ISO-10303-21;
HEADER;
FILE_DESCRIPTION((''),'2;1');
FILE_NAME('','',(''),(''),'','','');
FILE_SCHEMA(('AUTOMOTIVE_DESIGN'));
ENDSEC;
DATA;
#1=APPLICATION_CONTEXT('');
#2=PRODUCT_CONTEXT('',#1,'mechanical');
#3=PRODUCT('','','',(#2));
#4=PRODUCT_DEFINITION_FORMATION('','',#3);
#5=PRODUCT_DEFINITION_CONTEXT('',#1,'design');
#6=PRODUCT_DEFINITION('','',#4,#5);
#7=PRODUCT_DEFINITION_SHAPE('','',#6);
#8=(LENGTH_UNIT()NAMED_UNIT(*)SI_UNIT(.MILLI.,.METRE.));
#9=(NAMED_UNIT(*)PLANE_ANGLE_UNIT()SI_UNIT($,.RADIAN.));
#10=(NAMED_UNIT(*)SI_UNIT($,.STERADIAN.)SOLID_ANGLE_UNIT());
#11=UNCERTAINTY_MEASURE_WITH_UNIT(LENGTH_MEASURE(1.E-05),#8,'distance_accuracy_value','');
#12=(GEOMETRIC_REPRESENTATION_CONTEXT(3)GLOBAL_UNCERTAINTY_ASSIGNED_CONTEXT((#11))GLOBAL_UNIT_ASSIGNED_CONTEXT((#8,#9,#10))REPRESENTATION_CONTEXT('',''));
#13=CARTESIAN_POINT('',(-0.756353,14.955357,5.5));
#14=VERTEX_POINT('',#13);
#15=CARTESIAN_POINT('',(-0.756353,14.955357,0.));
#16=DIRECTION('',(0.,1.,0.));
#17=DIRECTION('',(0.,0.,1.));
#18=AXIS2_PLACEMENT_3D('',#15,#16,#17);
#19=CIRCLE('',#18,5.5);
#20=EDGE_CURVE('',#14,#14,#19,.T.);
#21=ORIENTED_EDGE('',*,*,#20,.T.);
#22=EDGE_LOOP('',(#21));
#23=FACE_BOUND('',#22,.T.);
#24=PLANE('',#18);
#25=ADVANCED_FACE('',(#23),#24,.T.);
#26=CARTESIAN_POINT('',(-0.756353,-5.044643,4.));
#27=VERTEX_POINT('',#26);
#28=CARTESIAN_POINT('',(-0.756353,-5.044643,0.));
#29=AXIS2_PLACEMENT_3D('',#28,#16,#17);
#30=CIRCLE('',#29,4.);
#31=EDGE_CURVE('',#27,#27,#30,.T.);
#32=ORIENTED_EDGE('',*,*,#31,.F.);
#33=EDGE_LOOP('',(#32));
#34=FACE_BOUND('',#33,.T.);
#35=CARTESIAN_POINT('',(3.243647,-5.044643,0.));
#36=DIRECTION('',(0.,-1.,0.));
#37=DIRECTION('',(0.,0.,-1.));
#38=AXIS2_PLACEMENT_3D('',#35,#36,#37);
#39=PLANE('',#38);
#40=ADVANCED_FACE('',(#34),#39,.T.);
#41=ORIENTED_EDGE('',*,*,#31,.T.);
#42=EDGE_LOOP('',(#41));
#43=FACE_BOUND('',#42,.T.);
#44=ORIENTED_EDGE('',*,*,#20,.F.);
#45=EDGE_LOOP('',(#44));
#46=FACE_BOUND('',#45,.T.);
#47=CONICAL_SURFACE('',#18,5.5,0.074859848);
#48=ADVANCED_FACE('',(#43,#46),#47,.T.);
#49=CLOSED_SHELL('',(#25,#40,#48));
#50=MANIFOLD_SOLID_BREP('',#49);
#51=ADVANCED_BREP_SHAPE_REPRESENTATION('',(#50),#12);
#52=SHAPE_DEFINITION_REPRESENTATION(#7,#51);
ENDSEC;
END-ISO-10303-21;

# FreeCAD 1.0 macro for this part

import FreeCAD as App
import Part
import Sketcher

doc = App.newDocument("Part")
body = doc.addObject("PartDesign::Body", "Body")

# Sketch on XY plane
sketch1 = body.newObject("Sketcher::SketchObject", "Sketch")
sketch1.AttachmentSupport = (doc.getObject("XY_Plane"), [""])
sketch1.MapMode = "FlatFace"
sketch1.addGeometry([
    Part.LineSegment(App.Vector(4.7, 15, 0), App.Vector(-0.8, 15, 0)),
    Part.LineSegment(App.Vector(-0.8, 15, 0), App.Vector(-0.8, -5, 0)),
    Part.LineSegment(App.Vector(-0.8, -5, 0), App.Vector(3.2, -5, 0)),
    Part.LineSegment(App.Vector(3.2, -5, 0), App.Vector(4.7, 15, 0)),
], False)
sketch1.addGeometry(Part.LineSegment(App.Vector(-0.8, 15, 0), App.Vector(-0.8, -5, 0)), True)  # axis
sketch1.addConstraint([
    Sketcher.Constraint("Coincident", 0, 2, 1, 1),
    Sketcher.Constraint("Coincident", 1, 2, 2, 1),
    Sketcher.Constraint("Coincident", 2, 2, 3, 1),
    Sketcher.Constraint("Coincident", 3, 2, 0, 1),
    Sketcher.Constraint("Horizontal", 0),
    Sketcher.Constraint("Vertical", 1),
    Sketcher.Constraint("Horizontal", 2),
    Sketcher.Constraint("Vertical", 4),
    Sketcher.Constraint("Coincident", 4, 1, 0, 2),
    Sketcher.Constraint("Horizontal", 2, 2, 4, 2),
    Sketcher.Constraint("DistanceX", 2, 1, 2, 2, 4.0),
    Sketcher.Constraint("DistanceY", 1, 2, 1, 1, 20.0),
    Sketcher.Constraint("DistanceX", 0, 2, 0, 1, 5.5),
    Sketcher.Constraint("DistanceX", 0, 2, -1, 1, 0.756353),
    Sketcher.Constraint("DistanceY", -1, 1, 0, 2, 14.955357),
])
revolution = body.newObject("PartDesign::Revolution", "Revolution")
revolution.Profile = sketch1
revolution.ReferenceAxis = (sketch1, ["Axis0"])
revolution.Angle = 360

doc.recompute()
